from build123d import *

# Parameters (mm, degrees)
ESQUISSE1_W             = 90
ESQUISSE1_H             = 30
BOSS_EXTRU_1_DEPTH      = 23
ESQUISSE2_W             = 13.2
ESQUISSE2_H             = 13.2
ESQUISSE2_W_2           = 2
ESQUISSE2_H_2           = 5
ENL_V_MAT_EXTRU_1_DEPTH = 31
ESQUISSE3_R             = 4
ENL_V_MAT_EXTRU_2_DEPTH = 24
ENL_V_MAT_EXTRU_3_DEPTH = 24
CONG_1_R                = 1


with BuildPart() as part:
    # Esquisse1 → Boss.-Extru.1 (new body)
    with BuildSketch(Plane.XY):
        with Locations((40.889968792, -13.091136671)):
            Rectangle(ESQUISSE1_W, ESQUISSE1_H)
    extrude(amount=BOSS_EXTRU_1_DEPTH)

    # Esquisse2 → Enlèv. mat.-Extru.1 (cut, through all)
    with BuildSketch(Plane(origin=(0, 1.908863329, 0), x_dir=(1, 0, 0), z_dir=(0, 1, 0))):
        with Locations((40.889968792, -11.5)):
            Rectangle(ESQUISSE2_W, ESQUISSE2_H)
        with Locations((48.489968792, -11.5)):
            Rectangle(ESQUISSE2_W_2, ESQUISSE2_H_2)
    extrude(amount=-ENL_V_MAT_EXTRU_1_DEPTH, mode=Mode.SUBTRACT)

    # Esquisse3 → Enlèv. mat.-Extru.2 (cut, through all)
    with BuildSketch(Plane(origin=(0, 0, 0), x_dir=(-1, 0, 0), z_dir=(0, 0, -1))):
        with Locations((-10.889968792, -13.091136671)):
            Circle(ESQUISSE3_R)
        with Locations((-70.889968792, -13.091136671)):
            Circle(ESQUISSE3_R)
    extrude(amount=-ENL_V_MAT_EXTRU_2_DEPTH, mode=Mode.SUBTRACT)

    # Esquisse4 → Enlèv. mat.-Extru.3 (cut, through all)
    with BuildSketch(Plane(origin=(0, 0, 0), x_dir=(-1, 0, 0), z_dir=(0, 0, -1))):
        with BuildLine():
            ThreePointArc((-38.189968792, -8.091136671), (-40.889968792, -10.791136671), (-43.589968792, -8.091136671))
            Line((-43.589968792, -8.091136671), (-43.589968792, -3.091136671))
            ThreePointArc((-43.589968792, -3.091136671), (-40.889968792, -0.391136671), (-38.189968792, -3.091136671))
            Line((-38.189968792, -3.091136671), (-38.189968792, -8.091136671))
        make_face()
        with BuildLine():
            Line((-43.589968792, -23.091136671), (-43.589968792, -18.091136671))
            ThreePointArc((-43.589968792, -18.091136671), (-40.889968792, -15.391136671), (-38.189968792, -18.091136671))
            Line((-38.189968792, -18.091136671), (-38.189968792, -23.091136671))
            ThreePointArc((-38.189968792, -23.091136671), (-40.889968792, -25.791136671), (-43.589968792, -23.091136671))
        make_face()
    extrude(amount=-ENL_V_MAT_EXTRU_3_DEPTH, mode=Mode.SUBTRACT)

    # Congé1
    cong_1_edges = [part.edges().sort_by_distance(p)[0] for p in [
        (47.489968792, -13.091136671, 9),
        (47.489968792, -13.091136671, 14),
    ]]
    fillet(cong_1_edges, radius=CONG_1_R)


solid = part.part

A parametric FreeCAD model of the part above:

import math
import FreeCAD as App
import Part
import Sketcher

V = App.Vector
Q = App.Units.Quantity


def edges_at(feature, points):
    """Names of the edges that pass closest to the given points."""
    edges = feature.Shape.Edges
    near = lambda p: min(range(len(edges)), key=lambda i: edges[i].distToShape(Part.Vertex(*p))[0])
    return sorted({f"Edge{near(p) + 1}" for p in points})


def add_polygon(sketch, points):
    """Adds a closed chain of lines whose ends are joined by coincident constraints."""
    first, n = sketch.GeometryCount, len(points)
    for a, b in zip(points, points[1:] + points[:1]):
        sketch.addGeometry(Part.LineSegment(App.Vector(*a, 0), App.Vector(*b, 0)), False)
    for i in range(n):
        sketch.addConstraint(Sketcher.Constraint("Coincident", first + i, 2, first + (i + 1) % n, 1))

doc = App.newDocument("Part")
body = doc.addObject("PartDesign::Body", "Body")

# Sketch on XY plane
sketch1 = doc.addObject("Sketcher::SketchObject", "Sketch")
body.addObject(sketch1)
sketch1.AttachmentSupport = (doc.XY_Plane, [""])
sketch1.MapMode = "FlatFace"
add_polygon(sketch1, [(-4, 2), (-4, -28), (86, -28), (86, 2)])  # lines 0-3
sketch1.addConstraint([
    Sketcher.Constraint("Vertical", 0),
    Sketcher.Constraint("Horizontal", 1),
    Sketcher.Constraint("Vertical", 2),
    Sketcher.Constraint("Horizontal", 3),
    Sketcher.Constraint("DistanceX", 1, 1, 1, 2, Q("90 mm")),
    Sketcher.Constraint("DistanceY", 0, 2, 0, 1, Q("30 mm")),
    Sketcher.Constraint("DistanceX", 0, 2, -1, 1, Q("4.110031 mm")),
    Sketcher.Constraint("DistanceY", 0, 2, -1, 1, Q("28.091137 mm")),
])
pad1 = doc.addObject("PartDesign::Pad", "Pad")
body.addObject(pad1)
pad1.Profile = sketch1
pad1.Length = 23

# Sketch on XZ plane
sketch2 = doc.addObject("Sketcher::SketchObject", "Sketch001")
body.addObject(sketch2)
sketch2.AttachmentSupport = (doc.XZ_Plane, [""])
sketch2.MapMode = "FlatFace"
sketch2.AttachmentOffset = App.Placement(V(0, 0, -1.908863), App.Rotation())
add_polygon(sketch2, [(34.3, 4.9), (34.3, 18.1), (47.5, 18.1), (47.5, 14), (49.5, 14), (49.5, 9), (47.5, 9), (47.5, 4.9)])  # lines 0-7
sketch2.addConstraint([
    Sketcher.Constraint("Vertical", 0),
    Sketcher.Constraint("Horizontal", 1),
    Sketcher.Constraint("Vertical", 2),
    Sketcher.Constraint("Horizontal", 3),
    Sketcher.Constraint("Vertical", 4),
    Sketcher.Constraint("Horizontal", 5),
    Sketcher.Constraint("Vertical", 6),
    Sketcher.Constraint("Horizontal", 7),
    Sketcher.Constraint("Vertical", 2, 2, 5, 2),
    Sketcher.Constraint("Equal", 7, 0),
    Sketcher.Constraint("Equal", 2, 6),
    Sketcher.Constraint("DistanceX", 3, 1, 3, 2, Q("2 mm")),
    Sketcher.Constraint("DistanceY", 4, 2, 4, 1, Q("5 mm")),
    Sketcher.Constraint("DistanceX", 1, 1, 1, 2, Q("13.2 mm")),
    Sketcher.Constraint("DistanceY", -1, 1, 2, 2, Q("14 mm")),
    Sketcher.Constraint("DistanceX", -1, 1, 0, 2, Q("34.289969 mm")),
])
pocket1 = doc.addObject("PartDesign::Pocket", "Pocket")
body.addObject(pocket1)
pocket1.Profile = sketch2
pocket1.Type = "ThroughAll"
pocket1.Reversed = True

# Sketch on XY plane
sketch3 = doc.addObject("Sketcher::SketchObject", "Sketch002")
body.addObject(sketch3)
sketch3.AttachmentSupport = (doc.XY_Plane, [""])
sketch3.MapMode = "FlatFace"
sketch3.addGeometry([
    Part.Circle(V(10.9, -13.1, 0), V(0, 0, 1), 4),
    Part.Circle(V(70.9, -13.1, 0), V(0, 0, 1), 4),
], False)
sketch3.addConstraint([
    Sketcher.Constraint("Equal", 0, 1),
    Sketcher.Constraint("Horizontal", 0, 3, 1, 3),
    Sketcher.Constraint("Diameter", 0, Q("8 mm")),
    Sketcher.Constraint("DistanceX", 0, 3, 1, 3, Q("60 mm")),
    Sketcher.Constraint("DistanceX", -1, 1, 0, 3, Q("10.889969 mm")),
    Sketcher.Constraint("DistanceY", 0, 3, -1, 1, Q("13.091137 mm")),
])
pocket2 = doc.addObject("PartDesign::Pocket", "Pocket001")
body.addObject(pocket2)
pocket2.Profile = sketch3
pocket2.Type = "ThroughAll"
pocket2.Reversed = True

# Sketch on XY plane
sketch4 = doc.addObject("Sketcher::SketchObject", "Sketch003")
body.addObject(sketch4)
sketch4.AttachmentSupport = (doc.XY_Plane, [""])
sketch4.MapMode = "FlatFace"
sketch4.addGeometry([
    Part.ArcOfCircle(Part.Circle(V(40.9, -8.1, 0), V(0, 0, 1), 2.7), math.radians(180), math.radians(360)),  # 0
    Part.LineSegment(V(38.2, -8.1, 0), V(38.2, -3.1, 0)),  # 1
    Part.ArcOfCircle(Part.Circle(V(40.9, -3.1, 0), V(0, 0, 1), 2.7), math.radians(0), math.radians(180)),  # 2
    Part.LineSegment(V(43.6, -3.1, 0), V(43.6, -8.1, 0)),  # 3
    Part.LineSegment(V(43.6, -18.1, 0), V(43.6, -23.1, 0)),  # 4
    Part.ArcOfCircle(Part.Circle(V(40.9, -23.1, 0), V(0, 0, 1), 2.7), math.radians(180), math.radians(360)),  # 5
    Part.LineSegment(V(38.2, -23.1, 0), V(38.2, -18.1, 0)),  # 6
    Part.ArcOfCircle(Part.Circle(V(40.9, -18.1, 0), V(0, 0, 1), 2.7), math.radians(0), math.radians(180)),  # 7
], False)
sketch4.addConstraint([
    Sketcher.Constraint("Tangent", 0, 1, 1, 1),
    Sketcher.Constraint("Tangent", 1, 2, 2, 2),
    Sketcher.Constraint("Tangent", 2, 1, 3, 1),
    Sketcher.Constraint("Tangent", 3, 2, 0, 2),
    Sketcher.Constraint("Tangent", 4, 2, 5, 2),
    Sketcher.Constraint("Tangent", 5, 1, 6, 1),
    Sketcher.Constraint("Tangent", 6, 2, 7, 2),
    Sketcher.Constraint("Tangent", 7, 1, 4, 1),
    Sketcher.Constraint("Vertical", 1),
    Sketcher.Constraint("Vertical", 3),
    Sketcher.Constraint("Vertical", 4),
    Sketcher.Constraint("Vertical", 6),
    Sketcher.Constraint("Equal", 2, 5),
    Sketcher.Constraint("Vertical", 2, 3, 5, 3),
    Sketcher.Constraint("Equal", 3, 4),
    Sketcher.Constraint("Radius", 0, Q("2.7 mm")),
    Sketcher.Constraint("DistanceY", 1, 1, 1, 2, Q("5 mm")),
    Sketcher.Constraint("DistanceY", 5, 3, 0, 3, Q("15 mm")),
    Sketcher.Constraint("DistanceX", -1, 1, 0, 3, Q("40.889969 mm")),
    Sketcher.Constraint("DistanceY", 0, 3, -1, 1, Q("8.091137 mm")),
])
pocket3 = doc.addObject("PartDesign::Pocket", "Pocket002")
body.addObject(pocket3)
pocket3.Profile = sketch4
pocket3.Type = "ThroughAll"
pocket3.Reversed = True
doc.recompute()

fillet = doc.addObject("PartDesign::Fillet", "Fillet")
body.addObject(fillet)
fillet.Base = (pocket3, edges_at(pocket3, [(47.49, -13.091, 9), (47.49, -13.091, 14)]))
fillet.Radius = 1

doc.recompute()
